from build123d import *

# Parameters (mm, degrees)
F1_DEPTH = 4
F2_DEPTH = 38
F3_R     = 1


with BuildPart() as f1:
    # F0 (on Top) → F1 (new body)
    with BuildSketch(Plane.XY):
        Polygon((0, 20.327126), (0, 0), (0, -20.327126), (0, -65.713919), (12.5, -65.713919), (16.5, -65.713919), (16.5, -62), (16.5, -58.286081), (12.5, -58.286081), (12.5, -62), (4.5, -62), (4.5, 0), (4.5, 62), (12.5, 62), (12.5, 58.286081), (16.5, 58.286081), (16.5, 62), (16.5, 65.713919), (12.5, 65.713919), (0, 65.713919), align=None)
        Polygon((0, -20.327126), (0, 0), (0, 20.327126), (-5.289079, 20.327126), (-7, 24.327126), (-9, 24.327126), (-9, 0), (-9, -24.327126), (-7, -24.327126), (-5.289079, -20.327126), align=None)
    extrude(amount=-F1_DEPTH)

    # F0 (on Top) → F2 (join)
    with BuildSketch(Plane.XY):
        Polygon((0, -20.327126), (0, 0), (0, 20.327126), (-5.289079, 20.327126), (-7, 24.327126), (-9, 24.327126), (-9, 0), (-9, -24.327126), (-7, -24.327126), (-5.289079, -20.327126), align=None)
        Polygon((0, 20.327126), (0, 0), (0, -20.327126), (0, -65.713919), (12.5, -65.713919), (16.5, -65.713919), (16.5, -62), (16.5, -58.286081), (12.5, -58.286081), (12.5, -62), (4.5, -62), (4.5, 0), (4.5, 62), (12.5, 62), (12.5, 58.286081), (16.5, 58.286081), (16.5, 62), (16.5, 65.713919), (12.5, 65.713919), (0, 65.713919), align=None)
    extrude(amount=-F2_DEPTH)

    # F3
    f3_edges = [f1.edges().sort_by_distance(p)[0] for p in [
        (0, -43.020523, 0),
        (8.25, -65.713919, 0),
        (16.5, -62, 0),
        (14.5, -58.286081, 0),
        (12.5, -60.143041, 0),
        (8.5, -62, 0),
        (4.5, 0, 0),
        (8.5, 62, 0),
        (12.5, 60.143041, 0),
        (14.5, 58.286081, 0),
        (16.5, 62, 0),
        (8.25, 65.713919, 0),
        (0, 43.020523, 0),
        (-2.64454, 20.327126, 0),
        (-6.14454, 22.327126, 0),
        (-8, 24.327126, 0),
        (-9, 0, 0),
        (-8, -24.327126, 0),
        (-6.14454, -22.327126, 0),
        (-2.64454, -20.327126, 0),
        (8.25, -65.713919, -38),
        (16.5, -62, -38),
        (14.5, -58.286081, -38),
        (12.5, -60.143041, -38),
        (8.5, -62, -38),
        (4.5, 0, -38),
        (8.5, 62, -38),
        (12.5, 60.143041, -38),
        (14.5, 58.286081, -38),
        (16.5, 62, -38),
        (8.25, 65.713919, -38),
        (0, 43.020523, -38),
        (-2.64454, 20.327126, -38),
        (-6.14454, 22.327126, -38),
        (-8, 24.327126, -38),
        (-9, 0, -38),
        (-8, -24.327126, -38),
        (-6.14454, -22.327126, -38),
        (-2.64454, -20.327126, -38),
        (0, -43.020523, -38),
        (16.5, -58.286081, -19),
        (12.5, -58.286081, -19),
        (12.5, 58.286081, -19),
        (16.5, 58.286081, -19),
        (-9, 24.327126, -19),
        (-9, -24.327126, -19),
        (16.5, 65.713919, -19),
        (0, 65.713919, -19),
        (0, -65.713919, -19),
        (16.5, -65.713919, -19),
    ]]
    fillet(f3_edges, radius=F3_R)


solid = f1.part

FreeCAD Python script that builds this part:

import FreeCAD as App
import Part
import Sketcher

V = App.Vector
Q = App.Units.Quantity


def edges_at(feature, points):
    """Names of the edges that pass closest to the given points."""
    edges = feature.Shape.Edges
    near = lambda p: min(range(len(edges)), key=lambda i: edges[i].distToShape(Part.Vertex(*p))[0])
    return sorted({f"Edge{near(p) + 1}" for p in points})

doc = App.newDocument("Part")
body = doc.addObject("PartDesign::Body", "Body")

# Sketch on XY plane
sketch1 = body.newObject("Sketcher::SketchObject", "Sketch")
sketch1.AttachmentSupport = (doc.getObject("XY_Plane"), [""])
sketch1.MapMode = "FlatFace"
sketch1.addGeometry([
    Part.LineSegment(V(0, -65.7, 0), V(16.5, -65.7, 0)),  # 0
    Part.LineSegment(V(16.5, -65.7, 0), V(16.5, -58.3, 0)),  # 1
    Part.LineSegment(V(16.5, -58.3, 0), V(12.5, -58.3, 0)),  # 2
    Part.LineSegment(V(12.5, -58.3, 0), V(12.5, -62, 0)),  # 3
    Part.LineSegment(V(12.5, -62, 0), V(4.5, -62, 0)),  # 4
    Part.LineSegment(V(4.5, -62, 0), V(4.5, 62, 0)),  # 5
    Part.LineSegment(V(4.5, 62, 0), V(12.5, 62, 0)),  # 6
    Part.LineSegment(V(12.5, 62, 0), V(12.5, 58.3, 0)),  # 7
    Part.LineSegment(V(12.5, 58.3, 0), V(16.5, 58.3, 0)),  # 8
    Part.LineSegment(V(16.5, 58.3, 0), V(16.5, 65.7, 0)),  # 9
    Part.LineSegment(V(16.5, 65.7, 0), V(0, 65.7, 0)),  # 10
    Part.LineSegment(V(0, 65.7, 0), V(0, 20.3, 0)),  # 11
    Part.LineSegment(V(0, 20.3, 0), V(-5.3, 20.3, 0)),  # 12
    Part.LineSegment(V(-5.3, 20.3, 0), V(-7, 24.3, 0)),  # 13
    Part.LineSegment(V(-7, 24.3, 0), V(-9, 24.3, 0)),  # 14
    Part.LineSegment(V(-9, 24.3, 0), V(-9, -24.3, 0)),  # 15
    Part.LineSegment(V(-9, -24.3, 0), V(-7, -24.3, 0)),  # 16
    Part.LineSegment(V(-7, -24.3, 0), V(-5.3, -20.3, 0)),  # 17
    Part.LineSegment(V(-5.3, -20.3, 0), V(0, -20.3, 0)),  # 18
    Part.LineSegment(V(0, -20.3, 0), V(0, -65.7, 0)),  # 19
], False)
sketch1.addConstraint([
    Sketcher.Constraint("Coincident", 0, 2, 1, 1),
    Sketcher.Constraint("Coincident", 1, 2, 2, 1),
    Sketcher.Constraint("Coincident", 2, 2, 3, 1),
    Sketcher.Constraint("Coincident", 3, 2, 4, 1),
    Sketcher.Constraint("Coincident", 4, 2, 5, 1),
    Sketcher.Constraint("Coincident", 5, 2, 6, 1),
    Sketcher.Constraint("Coincident", 6, 2, 7, 1),
    Sketcher.Constraint("Coincident", 7, 2, 8, 1),
    Sketcher.Constraint("Coincident", 8, 2, 9, 1),
    Sketcher.Constraint("Coincident", 9, 2, 10, 1),
    Sketcher.Constraint("Coincident", 10, 2, 11, 1),
    Sketcher.Constraint("Coincident", 11, 2, 12, 1),
    Sketcher.Constraint("Coincident", 12, 2, 13, 1),
    Sketcher.Constraint("Coincident", 13, 2, 14, 1),
    Sketcher.Constraint("Coincident", 14, 2, 15, 1),
    Sketcher.Constraint("Coincident", 15, 2, 16, 1),
    Sketcher.Constraint("Coincident", 16, 2, 17, 1),
    Sketcher.Constraint("Coincident", 17, 2, 18, 1),
    Sketcher.Constraint("Coincident", 18, 2, 19, 1),
    Sketcher.Constraint("Coincident", 19, 2, 0, 1),
    Sketcher.Constraint("Horizontal", 0),
    Sketcher.Constraint("Vertical", 1),
    Sketcher.Constraint("Horizontal", 2),
    Sketcher.Constraint("Vertical", 3),
    Sketcher.Constraint("Horizontal", 4),
    Sketcher.Constraint("Vertical", 5),
    Sketcher.Constraint("Horizontal", 6),
    Sketcher.Constraint("Vertical", 7),
    Sketcher.Constraint("Horizontal", 8),
    Sketcher.Constraint("Vertical", 9),
    Sketcher.Constraint("Horizontal", 10),
    Sketcher.Constraint("Vertical", 11),
    Sketcher.Constraint("Horizontal", 12),
    Sketcher.Constraint("Horizontal", 14),
    Sketcher.Constraint("Vertical", 15),
    Sketcher.Constraint("Horizontal", 16),
    Sketcher.Constraint("Horizontal", 18),
    Sketcher.Constraint("Vertical", 19),
    Sketcher.Constraint("Symmetric", 11, 2, 18, 2, -1, 1),
    Sketcher.Constraint("Symmetric", 3, 2, 6, 2, -1),
    Sketcher.Constraint("Symmetric", 1, 2, 8, 2, -1),
    Sketcher.Constraint("Symmetric", 13, 2, 16, 2, -1),
    Sketcher.Constraint("Symmetric", 10, 2, 19, 2, -1),
    Sketcher.Constraint("Vertical", 12, 2, 17, 2),
    Sketcher.Constraint("DistanceX", 2, 2, 2, 1, Q("4 mm")),
    Sketcher.Constraint("DistanceX", 4, 2, 4, 1, Q("8 mm")),
    Sketcher.Constraint("DistanceX", 14, 2, 14, 1, Q("2 mm")),
    Sketcher.Constraint("DistanceY", 5, 1, 5, 2, Q("124 mm")),
    Sketcher.Constraint("DistanceX", 0, 1, 0, 2, Q("16.5 mm")),
    Sketcher.Constraint("DistanceX", 13, 2, -1, 1, Q("7 mm")),
    Sketcher.Constraint("DistanceY", 1, 2, 9, 2, Q("124 mm")),
    Sketcher.Constraint("DistanceY", 12, 2, 13, 2, Q("4 mm")),
    Sketcher.Constraint("DistanceX", 12, 2, 12, 1, Q("5.289079 mm")),
    Sketcher.Constraint("DistanceY", 1, 1, 1, 2, Q("7.427838 mm")),
    Sketcher.Constraint("DistanceY", 11, 2, 11, 1, Q("45.386793 mm")),
])
pad1 = body.newObject("PartDesign::Pad", "Pad")
pad1.Profile = sketch1
pad1.Length = 4
pad1.Reversed = True

# Sketch on XY plane
sketch2 = body.newObject("Sketcher::SketchObject", "Sketch001")
sketch2.AttachmentSupport = (doc.getObject("XY_Plane"), [""])
sketch2.MapMode = "FlatFace"
sketch2.addGeometry([
    Part.LineSegment(V(0, 20.3, 0), V(-5.3, 20.3, 0)),  # 0
    Part.LineSegment(V(-5.3, 20.3, 0), V(-7, 24.3, 0)),  # 1
    Part.LineSegment(V(-7, 24.3, 0), V(-9, 24.3, 0)),  # 2
    Part.LineSegment(V(-9, 24.3, 0), V(-9, -24.3, 0)),  # 3
    Part.LineSegment(V(-9, -24.3, 0), V(-7, -24.3, 0)),  # 4
    Part.LineSegment(V(-7, -24.3, 0), V(-5.3, -20.3, 0)),  # 5
    Part.LineSegment(V(-5.3, -20.3, 0), V(0, -20.3, 0)),  # 6
    Part.LineSegment(V(0, -20.3, 0), V(0, -65.7, 0)),  # 7
    Part.LineSegment(V(0, -65.7, 0), V(16.5, -65.7, 0)),  # 8
    Part.LineSegment(V(16.5, -65.7, 0), V(16.5, -58.3, 0)),  # 9
    Part.LineSegment(V(16.5, -58.3, 0), V(12.5, -58.3, 0)),  # 10
    Part.LineSegment(V(12.5, -58.3, 0), V(12.5, -62, 0)),  # 11
    Part.LineSegment(V(12.5, -62, 0), V(4.5, -62, 0)),  # 12
    Part.LineSegment(V(4.5, -62, 0), V(4.5, 62, 0)),  # 13
    Part.LineSegment(V(4.5, 62, 0), V(12.5, 62, 0)),  # 14
    Part.LineSegment(V(12.5, 62, 0), V(12.5, 58.3, 0)),  # 15
    Part.LineSegment(V(12.5, 58.3, 0), V(16.5, 58.3, 0)),  # 16
    Part.LineSegment(V(16.5, 58.3, 0), V(16.5, 65.7, 0)),  # 17
    Part.LineSegment(V(16.5, 65.7, 0), V(0, 65.7, 0)),  # 18
    Part.LineSegment(V(0, 65.7, 0), V(0, 20.3, 0)),  # 19
], False)
sketch2.addConstraint([
    Sketcher.Constraint("Coincident", 0, 2, 1, 1),
    Sketcher.Constraint("Coincident", 1, 2, 2, 1),
    Sketcher.Constraint("Coincident", 2, 2, 3, 1),
    Sketcher.Constraint("Coincident", 3, 2, 4, 1),
    Sketcher.Constraint("Coincident", 4, 2, 5, 1),
    Sketcher.Constraint("Coincident", 5, 2, 6, 1),
    Sketcher.Constraint("Coincident", 6, 2, 7, 1),
    Sketcher.Constraint("Coincident", 7, 2, 8, 1),
    Sketcher.Constraint("Coincident", 8, 2, 9, 1),
    Sketcher.Constraint("Coincident", 9, 2, 10, 1),
    Sketcher.Constraint("Coincident", 10, 2, 11, 1),
    Sketcher.Constraint("Coincident", 11, 2, 12, 1),
    Sketcher.Constraint("Coincident", 12, 2, 13, 1),
    Sketcher.Constraint("Coincident", 13, 2, 14, 1),
    Sketcher.Constraint("Coincident", 14, 2, 15, 1),
    Sketcher.Constraint("Coincident", 15, 2, 16, 1),
    Sketcher.Constraint("Coincident", 16, 2, 17, 1),
    Sketcher.Constraint("Coincident", 17, 2, 18, 1),
    Sketcher.Constraint("Coincident", 18, 2, 19, 1),
    Sketcher.Constraint("Coincident", 19, 2, 0, 1),
    Sketcher.Constraint("Horizontal", 0),
    Sketcher.Constraint("Horizontal", 2),
    Sketcher.Constraint("Vertical", 3),
    Sketcher.Constraint("Horizontal", 4),
    Sketcher.Constraint("Horizontal", 6),
    Sketcher.Constraint("Vertical", 7),
    Sketcher.Constraint("Horizontal", 8),
    Sketcher.Constraint("Vertical", 9),
    Sketcher.Constraint("Horizontal", 10),
    Sketcher.Constraint("Vertical", 11),
    Sketcher.Constraint("Horizontal", 12),
    Sketcher.Constraint("Vertical", 13),
    Sketcher.Constraint("Horizontal", 14),
    Sketcher.Constraint("Vertical", 15),
    Sketcher.Constraint("Horizontal", 16),
    Sketcher.Constraint("Vertical", 17),
    Sketcher.Constraint("Horizontal", 18),
    Sketcher.Constraint("Vertical", 19),
    Sketcher.Constraint("Symmetric", 7, 2, 18, 2, -1, 1),
    Sketcher.Constraint("Symmetric", 1, 2, 4, 2, -1),
    Sketcher.Constraint("Symmetric", 0, 2, 5, 2, -1),
    Sketcher.Constraint("Symmetric", 11, 2, 14, 2, -1),
    Sketcher.Constraint("Symmetric", 9, 2, 16, 2, -1),
    Sketcher.Constraint("PointOnObject", 6, 2, -2),
    Sketcher.Constraint("DistanceX", 2, 2, 2, 1, Q("2 mm")),
    Sketcher.Constraint("DistanceX", 10, 2, 10, 1, Q("4 mm")),
    Sketcher.Constraint("DistanceX", 12, 2, 12, 1, Q("8 mm")),
    Sketcher.Constraint("DistanceY", 13, 1, 13, 2, Q("124 mm")),
    Sketcher.Constraint("DistanceX", 8, 1, 8, 2, Q("16.5 mm")),
    Sketcher.Constraint("DistanceX", 1, 2, -1, 1, Q("7 mm")),
    Sketcher.Constraint("DistanceY", 0, 2, 1, 2, Q("4 mm")),
    Sketcher.Constraint("DistanceX", 0, 2, 0, 1, Q("5.289079 mm")),
    Sketcher.Constraint("DistanceY", 9, 1, 9, 2, Q("7.427838 mm")),
    Sketcher.Constraint("DistanceY", 11, 2, 11, 1, Q("3.713919 mm")),
    Sketcher.Constraint("DistanceY", 3, 2, 3, 1, Q("48.654252 mm")),
])
pad2 = body.newObject("PartDesign::Pad", "Pad001")
pad2.Profile = sketch2
pad2.Length = 38
pad2.Reversed = True
doc.recompute()

fillet = body.newObject("PartDesign::Fillet", "Fillet")
fillet.Base = (pad2, edges_at(pad2, [
    (0, -43.021, 0),
    (8.25, -65.714, 0),
    (16.5, -62, 0),
    (14.5, -58.286, 0),
    (12.5, -60.143, 0),
    (8.5, -62, 0),
    (4.5, 0, 0),
    (8.5, 62, 0),
    (12.5, 60.143, 0),
    (14.5, 58.286, 0),
    (16.5, 62, 0),
    (8.25, 65.714, 0),
    (0, 43.021, 0),
    (-2.645, 20.327, 0),
    (-6.145, 22.327, 0),
    (-8, 24.327, 0),
    (-9, 0, 0),
    (-8, -24.327, 0),
    (-6.145, -22.327, 0),
    (-2.645, -20.327, 0),
    (8.25, -65.714, -38),
    (16.5, -62, -38),
    (14.5, -58.286, -38),
    (12.5, -60.143, -38),
    (8.5, -62, -38),
    (4.5, 0, -38),
    (8.5, 62, -38),
    (12.5, 60.143, -38),
    (14.5, 58.286, -38),
    (16.5, 62, -38),
    (8.25, 65.714, -38),
    (0, 43.021, -38),
    (-2.645, 20.327, -38),
    (-6.145, 22.327, -38),
    (-8, 24.327, -38),
    (-9, 0, -38),
    (-8, -24.327, -38),
    (-6.145, -22.327, -38),
    (-2.645, -20.327, -38),
    (0, -43.021, -38),
    (16.5, -58.286, -19),
    (12.5, -58.286, -19),
    (12.5, 58.286, -19),
    (16.5, 58.286, -19),
    (-9, 24.327, -19),
    (-9, -24.327, -19),
    (16.5, 65.714, -19),
    (0, 65.714, -19),
    (0, -65.714, -19),
    (16.5, -65.714, -19),
]))
fillet.Radius = 1

doc.recompute()
